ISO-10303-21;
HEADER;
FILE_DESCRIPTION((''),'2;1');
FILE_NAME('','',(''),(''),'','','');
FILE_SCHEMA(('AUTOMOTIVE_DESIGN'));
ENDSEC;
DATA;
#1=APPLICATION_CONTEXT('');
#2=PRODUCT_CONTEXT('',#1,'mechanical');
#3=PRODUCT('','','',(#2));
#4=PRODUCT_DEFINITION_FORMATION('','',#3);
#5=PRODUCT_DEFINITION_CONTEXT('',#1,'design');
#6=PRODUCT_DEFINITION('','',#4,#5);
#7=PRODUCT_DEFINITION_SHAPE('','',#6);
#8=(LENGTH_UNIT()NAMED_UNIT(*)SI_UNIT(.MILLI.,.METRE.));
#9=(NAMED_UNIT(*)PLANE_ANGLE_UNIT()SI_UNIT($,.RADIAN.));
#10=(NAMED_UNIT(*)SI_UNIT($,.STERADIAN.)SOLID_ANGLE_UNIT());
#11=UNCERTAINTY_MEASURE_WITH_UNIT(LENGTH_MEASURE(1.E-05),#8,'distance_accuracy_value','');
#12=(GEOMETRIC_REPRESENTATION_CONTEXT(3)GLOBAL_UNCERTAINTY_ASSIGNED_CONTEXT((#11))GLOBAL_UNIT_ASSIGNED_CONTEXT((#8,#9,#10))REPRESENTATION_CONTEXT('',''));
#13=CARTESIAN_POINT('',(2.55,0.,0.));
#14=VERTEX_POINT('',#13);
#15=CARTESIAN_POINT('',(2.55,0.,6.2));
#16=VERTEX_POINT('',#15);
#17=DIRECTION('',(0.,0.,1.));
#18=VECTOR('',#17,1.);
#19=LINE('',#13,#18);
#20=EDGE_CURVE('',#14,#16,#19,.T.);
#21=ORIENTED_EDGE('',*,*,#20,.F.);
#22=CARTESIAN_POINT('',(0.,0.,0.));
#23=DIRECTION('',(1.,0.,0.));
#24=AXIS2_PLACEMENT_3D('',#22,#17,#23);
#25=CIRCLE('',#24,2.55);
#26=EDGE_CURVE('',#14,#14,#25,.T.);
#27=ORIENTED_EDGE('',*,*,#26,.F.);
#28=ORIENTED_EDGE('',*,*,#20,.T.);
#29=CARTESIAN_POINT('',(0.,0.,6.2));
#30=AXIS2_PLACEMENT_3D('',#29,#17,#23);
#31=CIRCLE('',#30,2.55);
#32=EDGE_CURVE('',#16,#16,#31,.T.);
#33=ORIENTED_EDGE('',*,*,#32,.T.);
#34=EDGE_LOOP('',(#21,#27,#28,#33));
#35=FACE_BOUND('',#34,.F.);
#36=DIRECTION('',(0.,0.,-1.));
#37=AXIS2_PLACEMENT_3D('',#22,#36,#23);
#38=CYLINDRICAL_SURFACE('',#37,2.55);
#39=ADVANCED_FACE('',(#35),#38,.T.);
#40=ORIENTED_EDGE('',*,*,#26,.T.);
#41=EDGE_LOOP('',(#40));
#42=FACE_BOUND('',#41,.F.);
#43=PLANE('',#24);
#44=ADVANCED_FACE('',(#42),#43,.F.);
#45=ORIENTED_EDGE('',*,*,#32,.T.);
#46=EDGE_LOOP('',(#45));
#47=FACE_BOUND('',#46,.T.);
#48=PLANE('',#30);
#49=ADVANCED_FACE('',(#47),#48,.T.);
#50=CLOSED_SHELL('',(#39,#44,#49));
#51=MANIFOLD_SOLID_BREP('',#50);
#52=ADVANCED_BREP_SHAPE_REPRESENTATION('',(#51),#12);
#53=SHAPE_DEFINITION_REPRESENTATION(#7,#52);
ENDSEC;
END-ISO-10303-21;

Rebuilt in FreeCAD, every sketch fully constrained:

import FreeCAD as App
import Part
import Sketcher
Q = App.Units.Quantity

doc = App.newDocument("Part")
body = doc.addObject("PartDesign::Body", "Body")

sketch1 = doc.addObject("Sketcher::SketchObject", "Sketch")
body.addObject(sketch1)
sketch1.AttachmentSupport = (doc.XY_Plane, [""])
sketch1.MapMode = "FlatFace"
sketch1.addGeometry(Part.Circle(App.Vector(0, 0, 0), App.Vector(0, 0, 1), 2.5), False)
sketch1.addConstraint(Sketcher.Constraint("Coincident", 0, 3, -1, 1))
sketch1.addConstraint(Sketcher.Constraint("Diameter", 0, Q("5.1 mm")))
pad1 = doc.addObject("PartDesign::Pad", "Pad")
body.addObject(pad1)
pad1.Profile = sketch1
pad1.Length = 6.2

doc.recompute()
